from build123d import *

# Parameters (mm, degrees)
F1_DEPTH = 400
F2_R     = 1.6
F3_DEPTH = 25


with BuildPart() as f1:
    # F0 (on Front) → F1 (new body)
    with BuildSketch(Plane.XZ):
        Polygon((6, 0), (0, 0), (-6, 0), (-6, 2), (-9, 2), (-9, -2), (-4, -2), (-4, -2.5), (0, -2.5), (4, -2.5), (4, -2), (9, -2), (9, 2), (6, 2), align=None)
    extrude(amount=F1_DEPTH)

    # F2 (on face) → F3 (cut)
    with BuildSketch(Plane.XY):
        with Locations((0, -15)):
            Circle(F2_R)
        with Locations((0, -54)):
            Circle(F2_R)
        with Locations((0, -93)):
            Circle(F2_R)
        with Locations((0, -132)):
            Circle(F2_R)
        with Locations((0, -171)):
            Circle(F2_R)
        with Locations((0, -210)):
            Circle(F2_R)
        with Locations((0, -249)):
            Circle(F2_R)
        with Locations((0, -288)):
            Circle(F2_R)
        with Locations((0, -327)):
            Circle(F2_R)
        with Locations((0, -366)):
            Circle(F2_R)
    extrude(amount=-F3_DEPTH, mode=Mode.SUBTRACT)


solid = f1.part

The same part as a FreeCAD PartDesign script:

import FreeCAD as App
import Part
import Sketcher

V = App.Vector
Q = App.Units.Quantity

doc = App.newDocument("Part")
body = doc.addObject("PartDesign::Body", "Body")

# Sketch on XZ plane
sketch1 = body.newObject("Sketcher::SketchObject", "Sketch")
sketch1.AttachmentSupport = (doc.getObject("XZ_Plane"), [""])
sketch1.MapMode = "FlatFace"
sketch1.addGeometry(Part.LineSegment(V(6, 0, 0), V(-6, 0, 0)), False)
sketch1.addGeometry(Part.LineSegment(V(-6, 0, 0), V(-6, 2, 0)), False)
sketch1.addGeometry(Part.LineSegment(V(-6, 2, 0), V(-9, 2, 0)), False)
sketch1.addGeometry(Part.LineSegment(V(-9, 2, 0), V(-9, -2, 0)), False)
sketch1.addGeometry(Part.LineSegment(V(-9, -2, 0), V(-4, -2, 0)), False)
sketch1.addGeometry(Part.LineSegment(V(-4, -2, 0), V(-4, -2.5, 0)), False)
sketch1.addGeometry(Part.LineSegment(V(-4, -2.5, 0), V(4, -2.5, 0)), False)
sketch1.addGeometry(Part.LineSegment(V(4, -2.5, 0), V(4, -2, 0)), False)
sketch1.addGeometry(Part.LineSegment(V(4, -2, 0), V(9, -2, 0)), False)
sketch1.addGeometry(Part.LineSegment(V(9, -2, 0), V(9, 2, 0)), False)
sketch1.addGeometry(Part.LineSegment(V(9, 2, 0), V(6, 2, 0)), False)
sketch1.addGeometry(Part.LineSegment(V(6, 2, 0), V(6, 0, 0)), False)
sketch1.addConstraint(Sketcher.Constraint("Coincident", 0, 2, 1, 1))
sketch1.addConstraint(Sketcher.Constraint("Coincident", 1, 2, 2, 1))
sketch1.addConstraint(Sketcher.Constraint("Coincident", 2, 2, 3, 1))
sketch1.addConstraint(Sketcher.Constraint("Coincident", 3, 2, 4, 1))
sketch1.addConstraint(Sketcher.Constraint("Coincident", 4, 2, 5, 1))
sketch1.addConstraint(Sketcher.Constraint("Coincident", 5, 2, 6, 1))
sketch1.addConstraint(Sketcher.Constraint("Coincident", 6, 2, 7, 1))
sketch1.addConstraint(Sketcher.Constraint("Coincident", 7, 2, 8, 1))
sketch1.addConstraint(Sketcher.Constraint("Coincident", 8, 2, 9, 1))
sketch1.addConstraint(Sketcher.Constraint("Coincident", 9, 2, 10, 1))
sketch1.addConstraint(Sketcher.Constraint("Coincident", 10, 2, 11, 1))
sketch1.addConstraint(Sketcher.Constraint("Coincident", 11, 2, 0, 1))
sketch1.addConstraint(Sketcher.Constraint("Horizontal", 0))
sketch1.addConstraint(Sketcher.Constraint("Vertical", 1))
sketch1.addConstraint(Sketcher.Constraint("Horizontal", 2))
sketch1.addConstraint(Sketcher.Constraint("Vertical", 3))
sketch1.addConstraint(Sketcher.Constraint("Horizontal", 4))
sketch1.addConstraint(Sketcher.Constraint("Vertical", 5))
sketch1.addConstraint(Sketcher.Constraint("Horizontal", 6))
sketch1.addConstraint(Sketcher.Constraint("Vertical", 7))
sketch1.addConstraint(Sketcher.Constraint("Horizontal", 8))
sketch1.addConstraint(Sketcher.Constraint("Vertical", 9))
sketch1.addConstraint(Sketcher.Constraint("Horizontal", 10))
sketch1.addConstraint(Sketcher.Constraint("Vertical", 11))
sketch1.addConstraint(Sketcher.Constraint("Symmetric", 2, 2, 8, 2, -1, 1))
sketch1.addConstraint(Sketcher.Constraint("Symmetric", 0, 2, 11, 2, -1, 1))
sketch1.addConstraint(Sketcher.Constraint("Symmetric", 4, 2, 7, 2, -2))
sketch1.addConstraint(Sketcher.Constraint("Horizontal", 2, 2, 9, 2))
sketch1.addConstraint(Sketcher.Constraint("DistanceX", 0, 2, 0, 1, Q("12 mm")))
sketch1.addConstraint(Sketcher.Constraint("DistanceX", 2, 2, 2, 1, Q("3 mm")))
sketch1.addConstraint(Sketcher.Constraint("DistanceX", 4, 1, 4, 2, Q("5 mm")))
sketch1.addConstraint(Sketcher.Constraint("DistanceY", 1, 1, 1, 2, Q("2 mm")))
sketch1.addConstraint(Sketcher.Constraint("DistanceY", 5, 2, 5, 1, Q("0.5 mm")))
pad1 = body.newObject("PartDesign::Pad", "Pad")
pad1.Profile = sketch1
pad1.Length = 400

# Sketch on XY plane
sketch2 = body.newObject("Sketcher::SketchObject", "Sketch001")
sketch2.AttachmentSupport = (doc.getObject("XY_Plane"), [""])
sketch2.MapMode = "FlatFace"
sketch2.addGeometry(Part.Circle(V(0, -15, 0), V(0, 0, 1), 1.6), False)
sketch2.addGeometry(Part.Circle(V(0, -54, 0), V(0, 0, 1), 1.6), False)
sketch2.addGeometry(Part.Circle(V(0, -93, 0), V(0, 0, 1), 1.6), False)
sketch2.addGeometry(Part.Circle(V(0, -132, 0), V(0, 0, 1), 1.6), False)
sketch2.addGeometry(Part.Circle(V(0, -171, 0), V(0, 0, 1), 1.6), False)
sketch2.addGeometry(Part.Circle(V(0, -210, 0), V(0, 0, 1), 1.6), False)
sketch2.addGeometry(Part.Circle(V(0, -249, 0), V(0, 0, 1), 1.6), False)
sketch2.addGeometry(Part.Circle(V(0, -288, 0), V(0, 0, 1), 1.6), False)
sketch2.addGeometry(Part.Circle(V(0, -327, 0), V(0, 0, 1), 1.6), False)
sketch2.addGeometry(Part.Circle(V(0, -366, 0), V(0, 0, 1), 1.6), False)
sketch2.addConstraint(Sketcher.Constraint("Equal", 0, 1))
sketch2.addConstraint(Sketcher.Constraint("Equal", 1, 2))
sketch2.addConstraint(Sketcher.Constraint("Equal", 2, 3))
sketch2.addConstraint(Sketcher.Constraint("Equal", 3, 4))
sketch2.addConstraint(Sketcher.Constraint("Equal", 4, 5))
sketch2.addConstraint(Sketcher.Constraint("Equal", 5, 6))
sketch2.addConstraint(Sketcher.Constraint("Equal", 6, 7))
sketch2.addConstraint(Sketcher.Constraint("Equal", 7, 8))
sketch2.addConstraint(Sketcher.Constraint("Equal", 8, 9))
sketch2.addConstraint(Sketcher.Constraint("PointOnObject", 0, 3, -2))
sketch2.addConstraint(Sketcher.Constraint("PointOnObject", 1, 3, -2))
sketch2.addConstraint(Sketcher.Constraint("PointOnObject", 2, 3, -2))
sketch2.addConstraint(Sketcher.Constraint("PointOnObject", 3, 3, -2))
sketch2.addConstraint(Sketcher.Constraint("PointOnObject", 4, 3, -2))
sketch2.addConstraint(Sketcher.Constraint("PointOnObject", 5, 3, -2))
sketch2.addConstraint(Sketcher.Constraint("PointOnObject", 6, 3, -2))
sketch2.addConstraint(Sketcher.Constraint("PointOnObject", 7, 3, -2))
sketch2.addConstraint(Sketcher.Constraint("PointOnObject", 8, 3, -2))
sketch2.addConstraint(Sketcher.Constraint("PointOnObject", 9, 3, -2))
sketch2.addConstraint(Sketcher.Constraint("Diameter", 0, Q("3.2 mm")))
sketch2.addConstraint(Sketcher.Constraint("DistanceY", 0, 3, -1, 1, Q("15 mm")))
sketch2.addConstraint(Sketcher.Constraint("DistanceY", 1, 3, -1, 1, Q("54 mm")))
sketch2.addConstraint(Sketcher.Constraint("DistanceY", 2, 3, -1, 1, Q("93 mm")))
sketch2.addConstraint(Sketcher.Constraint("DistanceY", 3, 3, -1, 1, Q("132 mm")))
sketch2.addConstraint(Sketcher.Constraint("DistanceY", 4, 3, -1, 1, Q("171 mm")))
sketch2.addConstraint(Sketcher.Constraint("DistanceY", 5, 3, -1, 1, Q("210 mm")))
sketch2.addConstraint(Sketcher.Constraint("DistanceY", 6, 3, -1, 1, Q("249 mm")))
sketch2.addConstraint(Sketcher.Constraint("DistanceY", 7, 3, -1, 1, Q("288 mm")))
sketch2.addConstraint(Sketcher.Constraint("DistanceY", 8, 3, -1, 1, Q("327 mm")))
sketch2.addConstraint(Sketcher.Constraint("DistanceY", 9, 3, -1, 1, Q("366 mm")))
pocket1 = body.newObject("PartDesign::Pocket", "Pocket")
pocket1.Profile = sketch2
pocket1.Length = 25

doc.recompute()
